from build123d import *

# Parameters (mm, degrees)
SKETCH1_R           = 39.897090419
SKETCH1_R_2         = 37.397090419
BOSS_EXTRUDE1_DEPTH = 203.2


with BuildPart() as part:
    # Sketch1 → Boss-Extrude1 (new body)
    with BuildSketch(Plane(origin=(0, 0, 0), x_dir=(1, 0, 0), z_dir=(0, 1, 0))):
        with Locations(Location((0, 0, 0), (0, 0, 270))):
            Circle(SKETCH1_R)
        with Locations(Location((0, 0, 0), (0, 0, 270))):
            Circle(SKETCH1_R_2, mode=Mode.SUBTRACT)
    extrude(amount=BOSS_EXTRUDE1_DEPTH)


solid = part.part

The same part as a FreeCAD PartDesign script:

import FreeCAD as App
import Part
import Sketcher

V = App.Vector
Q = App.Units.Quantity

doc = App.newDocument("Part")
body = doc.addObject("PartDesign::Body", "Body")

sketch1 = body.newObject("Sketcher::SketchObject", "Sketch")
sketch1.AttachmentSupport = (doc.getObject("XZ_Plane"), [""])
sketch1.MapMode = "FlatFace"
sketch1.addGeometry([
    Part.Circle(V(0, 0, 0), V(0, 0, 1), 40),
    Part.Circle(V(0, 0, 0), V(0, 0, 1), 37),
], False)
sketch1.addConstraint([
    Sketcher.Constraint("Coincident", 0, 3, -1, 1),
    Sketcher.Constraint("Coincident", 1, 3, -1, 1),
    Sketcher.Constraint("Diameter", 0, 79.794181),
    Sketcher.Constraint("Diameter", 1, 74.794181),
])
pad1 = body.newObject("PartDesign::Pad", "Pad")
pad1.Profile = sketch1
pad1.Length = Q("8 in")
pad1.Reversed = True

doc.recompute()
